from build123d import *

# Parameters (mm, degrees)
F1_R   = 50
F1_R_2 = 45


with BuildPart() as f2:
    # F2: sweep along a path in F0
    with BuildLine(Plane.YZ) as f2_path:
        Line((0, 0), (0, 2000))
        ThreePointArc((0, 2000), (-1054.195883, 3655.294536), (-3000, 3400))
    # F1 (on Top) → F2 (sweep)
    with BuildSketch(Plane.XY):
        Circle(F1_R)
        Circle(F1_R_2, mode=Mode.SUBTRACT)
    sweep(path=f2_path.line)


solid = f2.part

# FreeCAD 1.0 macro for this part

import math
import FreeCAD as App
import Part
import Sketcher

doc = App.newDocument("Part")
body = doc.addObject("PartDesign::Body", "Body")

# Sketch on XY plane
sketch1 = body.newObject("Sketcher::SketchObject", "Sketch")
sketch1.AttachmentSupport = (doc.getObject("XY_Plane"), [""])
sketch1.MapMode = "FlatFace"
sketch1.addGeometry([
    Part.Circle(App.Vector(0, 0, 0), App.Vector(0, 0, 1), 50),
    Part.Circle(App.Vector(0, 0, 0), App.Vector(0, 0, 1), 45),
], False)
sketch1.addConstraint([
    Sketcher.Constraint("Coincident", 0, 3, -1, 1),
    Sketcher.Constraint("Coincident", 1, 3, -1, 1),
    Sketcher.Constraint("Diameter", 0, 100.0),
    Sketcher.Constraint("Diameter", 1, 90.0),
])

# Sketch on YZ plane
sketch2 = body.newObject("Sketcher::SketchObject", "Sketch001")
sketch2.AttachmentSupport = (doc.getObject("YZ_Plane"), [""])
sketch2.MapMode = "FlatFace"
sketch2.addGeometry([
    Part.LineSegment(App.Vector(0, 0, 0), App.Vector(0, 2000, 0)),
    Part.ArcOfCircle(Part.Circle(App.Vector(-1827, 2000, 0), App.Vector(0, 0, 1), 1827), math.radians(0), math.radians(130)),
], False)
sketch2.addConstraint([
    Sketcher.Constraint("Coincident", 0, 2, 1, 1),
    Sketcher.Constraint("Vertical", 0),
    Sketcher.Constraint("Coincident", 0, 1, -1, 1),
    Sketcher.Constraint("Horizontal", 1, 3, 0, 2),
    Sketcher.Constraint("DistanceY", 0, 1, 0, 2, 2000.0),
    Sketcher.Constraint("DistanceX", 1, 2, -1, 1, 3000.0),
    Sketcher.Constraint("Radius", 1, 1826.666666),
])
doc.recompute()

additivepipe = body.newObject("PartDesign::AdditivePipe", "AdditivePipe")
additivepipe.Profile = sketch1
additivepipe.Spine = (sketch2, ["Edge1", "Edge2"])

doc.recompute()
